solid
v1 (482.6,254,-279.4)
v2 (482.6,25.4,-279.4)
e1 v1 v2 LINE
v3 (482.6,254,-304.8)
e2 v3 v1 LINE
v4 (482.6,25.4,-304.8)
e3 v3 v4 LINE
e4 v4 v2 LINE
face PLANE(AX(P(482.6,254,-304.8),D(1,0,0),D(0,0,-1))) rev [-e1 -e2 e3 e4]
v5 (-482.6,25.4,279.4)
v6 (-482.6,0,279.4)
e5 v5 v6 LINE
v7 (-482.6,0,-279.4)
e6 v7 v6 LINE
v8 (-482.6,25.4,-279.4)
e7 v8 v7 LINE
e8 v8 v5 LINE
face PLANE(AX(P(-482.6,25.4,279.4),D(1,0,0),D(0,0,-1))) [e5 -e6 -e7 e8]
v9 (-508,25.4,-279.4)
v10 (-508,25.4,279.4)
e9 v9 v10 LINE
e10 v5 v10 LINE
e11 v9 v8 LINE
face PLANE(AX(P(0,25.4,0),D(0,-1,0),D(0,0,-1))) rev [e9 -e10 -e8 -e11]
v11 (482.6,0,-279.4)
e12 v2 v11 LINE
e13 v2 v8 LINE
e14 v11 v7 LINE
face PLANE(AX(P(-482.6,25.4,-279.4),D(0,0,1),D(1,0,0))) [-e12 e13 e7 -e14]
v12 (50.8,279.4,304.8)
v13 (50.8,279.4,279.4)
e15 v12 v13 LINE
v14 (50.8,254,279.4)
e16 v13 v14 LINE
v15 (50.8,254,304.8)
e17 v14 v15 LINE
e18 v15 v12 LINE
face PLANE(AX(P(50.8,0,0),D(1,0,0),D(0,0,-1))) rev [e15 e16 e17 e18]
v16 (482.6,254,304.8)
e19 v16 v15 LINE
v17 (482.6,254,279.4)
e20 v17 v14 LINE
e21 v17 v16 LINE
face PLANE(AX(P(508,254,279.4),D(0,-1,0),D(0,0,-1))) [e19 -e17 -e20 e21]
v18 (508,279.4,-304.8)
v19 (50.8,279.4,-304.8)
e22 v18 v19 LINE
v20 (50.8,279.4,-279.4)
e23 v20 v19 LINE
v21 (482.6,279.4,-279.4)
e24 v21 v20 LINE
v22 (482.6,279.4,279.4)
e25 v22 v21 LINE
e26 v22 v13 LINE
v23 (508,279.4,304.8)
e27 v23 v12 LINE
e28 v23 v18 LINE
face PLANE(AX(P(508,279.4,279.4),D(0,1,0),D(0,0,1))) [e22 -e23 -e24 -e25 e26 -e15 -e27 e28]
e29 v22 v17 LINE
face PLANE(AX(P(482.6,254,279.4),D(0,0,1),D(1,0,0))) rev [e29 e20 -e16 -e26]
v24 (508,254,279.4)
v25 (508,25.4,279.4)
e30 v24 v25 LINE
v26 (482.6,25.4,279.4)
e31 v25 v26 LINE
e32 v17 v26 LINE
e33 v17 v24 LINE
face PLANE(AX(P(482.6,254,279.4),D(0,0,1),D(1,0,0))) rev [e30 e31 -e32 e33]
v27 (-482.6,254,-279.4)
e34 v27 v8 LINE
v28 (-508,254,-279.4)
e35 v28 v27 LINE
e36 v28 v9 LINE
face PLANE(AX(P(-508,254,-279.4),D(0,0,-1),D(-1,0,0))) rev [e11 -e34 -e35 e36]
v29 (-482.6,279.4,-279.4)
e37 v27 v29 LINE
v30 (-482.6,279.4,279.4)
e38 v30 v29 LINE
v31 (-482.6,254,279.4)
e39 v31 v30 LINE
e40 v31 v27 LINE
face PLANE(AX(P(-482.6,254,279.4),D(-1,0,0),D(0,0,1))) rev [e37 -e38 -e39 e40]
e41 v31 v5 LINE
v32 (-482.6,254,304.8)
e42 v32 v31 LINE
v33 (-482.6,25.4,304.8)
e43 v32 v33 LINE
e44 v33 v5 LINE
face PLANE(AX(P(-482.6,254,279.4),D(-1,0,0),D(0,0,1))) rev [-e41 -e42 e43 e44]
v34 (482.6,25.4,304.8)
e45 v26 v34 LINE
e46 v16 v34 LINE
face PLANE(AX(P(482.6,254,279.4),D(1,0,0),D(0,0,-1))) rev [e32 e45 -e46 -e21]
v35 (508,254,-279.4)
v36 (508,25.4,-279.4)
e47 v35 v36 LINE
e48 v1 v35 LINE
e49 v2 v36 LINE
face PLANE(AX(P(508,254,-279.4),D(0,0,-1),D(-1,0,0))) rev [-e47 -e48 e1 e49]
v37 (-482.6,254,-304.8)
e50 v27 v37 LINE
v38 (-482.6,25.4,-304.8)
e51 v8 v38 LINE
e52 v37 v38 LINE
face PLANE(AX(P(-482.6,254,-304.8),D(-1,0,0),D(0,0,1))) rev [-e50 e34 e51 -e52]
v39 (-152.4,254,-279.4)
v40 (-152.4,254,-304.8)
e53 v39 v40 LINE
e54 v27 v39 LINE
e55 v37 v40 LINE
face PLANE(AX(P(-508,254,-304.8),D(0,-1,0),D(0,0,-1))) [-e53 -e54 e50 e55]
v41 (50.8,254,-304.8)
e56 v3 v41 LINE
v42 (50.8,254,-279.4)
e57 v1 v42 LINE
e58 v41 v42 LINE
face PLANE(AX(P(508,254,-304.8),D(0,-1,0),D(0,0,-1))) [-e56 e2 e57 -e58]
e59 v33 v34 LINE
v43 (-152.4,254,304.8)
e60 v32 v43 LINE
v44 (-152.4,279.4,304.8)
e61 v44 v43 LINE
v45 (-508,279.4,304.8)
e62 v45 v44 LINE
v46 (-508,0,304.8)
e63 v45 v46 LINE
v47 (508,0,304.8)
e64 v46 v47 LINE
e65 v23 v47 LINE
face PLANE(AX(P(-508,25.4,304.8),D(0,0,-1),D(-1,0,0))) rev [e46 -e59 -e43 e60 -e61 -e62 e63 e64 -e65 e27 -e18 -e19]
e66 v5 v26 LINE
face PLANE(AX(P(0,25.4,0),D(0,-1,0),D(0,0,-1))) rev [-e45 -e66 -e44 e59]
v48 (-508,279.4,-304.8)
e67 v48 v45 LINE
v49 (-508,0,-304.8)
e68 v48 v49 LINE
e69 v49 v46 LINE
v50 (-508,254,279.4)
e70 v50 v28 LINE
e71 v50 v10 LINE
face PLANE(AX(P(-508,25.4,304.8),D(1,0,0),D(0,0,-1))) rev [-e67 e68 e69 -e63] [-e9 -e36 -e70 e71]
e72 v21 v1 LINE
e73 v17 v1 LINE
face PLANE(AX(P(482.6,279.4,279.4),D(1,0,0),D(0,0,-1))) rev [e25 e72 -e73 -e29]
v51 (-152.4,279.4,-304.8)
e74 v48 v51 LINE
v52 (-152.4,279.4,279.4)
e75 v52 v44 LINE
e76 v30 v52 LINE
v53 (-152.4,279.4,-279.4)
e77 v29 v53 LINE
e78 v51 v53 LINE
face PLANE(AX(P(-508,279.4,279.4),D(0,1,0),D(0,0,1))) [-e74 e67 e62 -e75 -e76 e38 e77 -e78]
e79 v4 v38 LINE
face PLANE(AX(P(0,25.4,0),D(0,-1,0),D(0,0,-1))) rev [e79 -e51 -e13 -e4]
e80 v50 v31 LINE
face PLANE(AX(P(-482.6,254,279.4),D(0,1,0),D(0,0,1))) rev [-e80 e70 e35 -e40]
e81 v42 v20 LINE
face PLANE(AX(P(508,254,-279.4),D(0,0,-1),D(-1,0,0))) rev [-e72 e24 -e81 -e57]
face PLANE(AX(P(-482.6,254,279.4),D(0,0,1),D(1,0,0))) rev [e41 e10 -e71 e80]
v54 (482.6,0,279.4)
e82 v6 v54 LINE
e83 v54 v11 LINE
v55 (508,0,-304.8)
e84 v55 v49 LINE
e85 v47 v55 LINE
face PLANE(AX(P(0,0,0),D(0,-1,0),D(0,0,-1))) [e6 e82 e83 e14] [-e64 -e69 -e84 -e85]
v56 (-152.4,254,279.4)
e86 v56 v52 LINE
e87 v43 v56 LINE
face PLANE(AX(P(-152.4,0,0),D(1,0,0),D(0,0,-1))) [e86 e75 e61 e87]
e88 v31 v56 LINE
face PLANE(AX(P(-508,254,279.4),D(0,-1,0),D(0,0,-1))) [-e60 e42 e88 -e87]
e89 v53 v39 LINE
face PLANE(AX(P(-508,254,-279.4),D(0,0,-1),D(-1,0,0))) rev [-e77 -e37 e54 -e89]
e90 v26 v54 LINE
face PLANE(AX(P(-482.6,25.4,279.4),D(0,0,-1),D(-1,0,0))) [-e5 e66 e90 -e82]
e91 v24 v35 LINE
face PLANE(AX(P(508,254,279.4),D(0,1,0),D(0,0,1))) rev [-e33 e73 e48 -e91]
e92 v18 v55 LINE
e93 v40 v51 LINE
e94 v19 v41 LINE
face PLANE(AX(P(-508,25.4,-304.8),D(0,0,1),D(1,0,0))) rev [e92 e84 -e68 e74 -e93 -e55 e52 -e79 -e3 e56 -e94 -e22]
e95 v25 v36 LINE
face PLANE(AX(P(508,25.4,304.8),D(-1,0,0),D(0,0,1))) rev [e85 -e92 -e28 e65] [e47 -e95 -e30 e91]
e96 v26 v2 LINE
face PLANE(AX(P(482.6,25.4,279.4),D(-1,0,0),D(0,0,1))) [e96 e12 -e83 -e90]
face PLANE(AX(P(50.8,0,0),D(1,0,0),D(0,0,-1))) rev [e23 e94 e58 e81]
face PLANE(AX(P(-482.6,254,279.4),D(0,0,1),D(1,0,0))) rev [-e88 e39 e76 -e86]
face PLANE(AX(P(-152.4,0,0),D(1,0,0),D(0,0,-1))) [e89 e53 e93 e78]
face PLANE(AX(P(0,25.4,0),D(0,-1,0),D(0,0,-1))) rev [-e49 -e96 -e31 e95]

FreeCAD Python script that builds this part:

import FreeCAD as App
import Part
import Sketcher
from FreeCAD import Vector
Q = App.Units.Quantity


def add_polygon(sketch, points):
    """Adds a closed chain of lines whose ends are joined by coincident constraints."""
    first, n = sketch.GeometryCount, len(points)
    for a, b in zip(points, points[1:] + points[:1]):
        sketch.addGeometry(Part.LineSegment(App.Vector(*a, 0), App.Vector(*b, 0)), False)
    for i in range(n):
        sketch.addConstraint(Sketcher.Constraint("Coincident", first + i, 2, first + (i + 1) % n, 1))

doc = App.newDocument("Part")
params = doc.addObject("Spreadsheet::Sheet", "Params")
for row, (alias, value) in enumerate([
    ("sketch1_width", "40 in"),
    ("sketch1_width2", "38 in"),
    ("sketch1_height", "24 in"),
    ("sketch1_height2", "22 in"),
    ("pad1_length", "1 in"),
    ("sketch2_width", "1 in"),
    ("pad2_length", "9 in"),
    ("sketch3_width", "1 in"),
    ("pad3_length", "13 in"),
    ("pad3_length2", "1 in"),
    ("sketch4_width", "1 in"),
    ("pad4_length", "17 in"),
    ("pad4_length2", "1 in"),
    ("sketch5_width", "1 in"),
    ("pad5_length", "22 in"),
], start=1):
    params.set(f"A{row}", alias)
    params.set(f"B{row}", "=" + value)
    params.setAlias(f"B{row}", alias)

body = doc.addObject("PartDesign::Body", "Body")

# Sketch on XZ plane
sketch1 = doc.addObject("Sketcher::SketchObject", "Sketch")
body.addObject(sketch1)
sketch1.AttachmentSupport = (doc.XZ_Plane, [""])
sketch1.MapMode = "FlatFace"
add_polygon(sketch1, [(-508, -305), (-508, 305), (508, 305), (508, -305)])  # lines 0-3
add_polygon(sketch1, [(483, 279), (-483, 279), (-483, -279), (483, -279)])  # lines 4-7
sketch1.addConstraint([
    Sketcher.Constraint("Vertical", 0),
    Sketcher.Constraint("Horizontal", 1),
    Sketcher.Constraint("Vertical", 2),
    Sketcher.Constraint("Horizontal", 3),
    Sketcher.Constraint("Horizontal", 4),
    Sketcher.Constraint("Vertical", 5),
    Sketcher.Constraint("Horizontal", 6),
    Sketcher.Constraint("Vertical", 7),
    Sketcher.Constraint("Symmetric", 0, 2, 2, 2, -1, 1),
    Sketcher.Constraint("Symmetric", 4, 2, 6, 2, -1, 1),
    Sketcher.Constraint("DistanceX", 1, 1, 1, 2, Q("40 in")),
    Sketcher.Constraint("DistanceX", 4, 2, 4, 1, Q("38 in")),
    Sketcher.Constraint("DistanceY", 0, 1, 0, 2, Q("24 in")),
    Sketcher.Constraint("DistanceY", 5, 2, 5, 1, Q("22 in")),
])
sketch1.setExpression("Constraints[18]", "Params.sketch1_width")
sketch1.setExpression("Constraints[19]", "Params.sketch1_width2")
sketch1.setExpression("Constraints[20]", "Params.sketch1_height")
sketch1.setExpression("Constraints[21]", "Params.sketch1_height2")
pad1 = doc.addObject("PartDesign::Pad", "Pad")
body.addObject(pad1)
pad1.Profile = sketch1
pad1.setExpression("Length", "Params.pad1_length")
pad1.Reversed = True

# Sketch on XZ plane
sketch2 = doc.addObject("Sketcher::SketchObject", "Sketch001")
body.addObject(sketch2)
sketch2.AttachmentSupport = (doc.XZ_Plane, [""])
sketch2.MapMode = "FlatFace"
sketch2.AttachmentOffset = App.Placement(Vector(0, 0, -1 * 25.4), App.Rotation())
add_polygon(sketch2, [(-508, -305), (-508, -279), (-483, -279), (-483, -305)])  # lines 0-3
add_polygon(sketch2, [(483, -305), (483, -279), (508, -279), (508, -305)])  # lines 4-7
add_polygon(sketch2, [(483, 279), (483, 305), (508, 305), (508, 279)])  # lines 8-11
add_polygon(sketch2, [(-508, 279), (-508, 305), (-483, 305), (-483, 279)])  # lines 12-15
sketch2.addConstraint([
    Sketcher.Constraint("Vertical", 0),
    Sketcher.Constraint("Horizontal", 1),
    Sketcher.Constraint("Vertical", 2),
    Sketcher.Constraint("Horizontal", 3),
    Sketcher.Constraint("Vertical", 4),
    Sketcher.Constraint("Horizontal", 5),
    Sketcher.Constraint("Vertical", 6),
    Sketcher.Constraint("Horizontal", 7),
    Sketcher.Constraint("Vertical", 8),
    Sketcher.Constraint("Horizontal", 9),
    Sketcher.Constraint("Vertical", 10),
    Sketcher.Constraint("Horizontal", 11),
    Sketcher.Constraint("Vertical", 12),
    Sketcher.Constraint("Horizontal", 13),
    Sketcher.Constraint("Vertical", 14),
    Sketcher.Constraint("Horizontal", 15),
    Sketcher.Constraint("Symmetric", 2, 2, 8, 2, -1, 1),
    Sketcher.Constraint("Symmetric", 0, 2, 10, 2, -1, 1),
    Sketcher.Constraint("Symmetric", 6, 2, 12, 2, -1, 1),
    Sketcher.Constraint("Symmetric", 4, 2, 14, 2, -1, 1),
    Sketcher.Constraint("Symmetric", 1, 2, 4, 2, -2),
    Sketcher.Constraint("Symmetric", 3, 2, 6, 2, -2),
    Sketcher.Constraint("Equal", 15, 0),
    Sketcher.Constraint("DistanceX", 1, 1, 1, 2, Q("1 in")),
    Sketcher.Constraint("DistanceX", 0, 2, -1, 1, Q("20 in")),
    Sketcher.Constraint("DistanceY", 0, 2, -1, 1, Q("11 in")),
])
sketch2.setExpression("Constraints[39]", "Params.sketch2_width")
pad2 = doc.addObject("PartDesign::Pad", "Pad001")
body.addObject(pad2)
pad2.Profile = sketch2
pad2.setExpression("Length", "Params.pad2_length")
pad2.Reversed = True

# Sketch on YZ plane
sketch3 = doc.addObject("Sketcher::SketchObject", "Sketch002")
body.addObject(sketch3)
sketch3.AttachmentSupport = (doc.YZ_Plane, [""])
sketch3.MapMode = "FlatFace"
sketch3.AttachmentOffset = App.Placement(Vector(0, 0, -19 * 25.4), App.Rotation())
add_polygon(sketch3, [(279, 305), (254, 305), (254, 279), (279, 279)])  # lines 0-3
add_polygon(sketch3, [(279, -279), (254, -279), (254, -305), (279, -305)])  # lines 4-7
sketch3.addConstraint([
    Sketcher.Constraint("Horizontal", 0),
    Sketcher.Constraint("Vertical", 1),
    Sketcher.Constraint("Horizontal", 2),
    Sketcher.Constraint("Vertical", 3),
    Sketcher.Constraint("Horizontal", 4),
    Sketcher.Constraint("Vertical", 5),
    Sketcher.Constraint("Horizontal", 6),
    Sketcher.Constraint("Vertical", 7),
    Sketcher.Constraint("Symmetric", 1, 2, 4, 2, -1),
    Sketcher.Constraint("Symmetric", 3, 2, 6, 2, -1),
    Sketcher.Constraint("Equal", 6, 1),
    Sketcher.Constraint("DistanceX", 0, 2, 0, 1, Q("1 in")),
    Sketcher.Constraint("DistanceX", -1, 1, 0, 2, Q("10 in")),
    Sketcher.Constraint("DistanceY", -1, 1, 0, 2, Q("12 in")),
])
sketch3.setExpression("Constraints[19]", "Params.sketch3_width")
pad3 = doc.addObject("PartDesign::Pad", "Pad002")
body.addObject(pad3)
pad3.Profile = sketch3
pad3.Type = "TwoLengths"
pad3.setExpression("Length", "Params.pad3_length")
pad3.setExpression("Length2", "Params.pad3_length2")

# Sketch on YZ plane
sketch4 = doc.addObject("Sketcher::SketchObject", "Sketch003")
body.addObject(sketch4)
sketch4.AttachmentSupport = (doc.YZ_Plane, [""])
sketch4.MapMode = "FlatFace"
sketch4.AttachmentOffset = App.Placement(Vector(0, 0, 19 * 25.4), App.Rotation())
add_polygon(sketch4, [(279, 279), (254, 279), (254, 305), (279, 305)])  # lines 0-3
add_polygon(sketch4, [(279, -305), (254, -305), (254, -279), (279, -279)])  # lines 4-7
sketch4.addConstraint([
    Sketcher.Constraint("Horizontal", 0),
    Sketcher.Constraint("Vertical", 1),
    Sketcher.Constraint("Horizontal", 2),
    Sketcher.Constraint("Vertical", 3),
    Sketcher.Constraint("Horizontal", 4),
    Sketcher.Constraint("Vertical", 5),
    Sketcher.Constraint("Horizontal", 6),
    Sketcher.Constraint("Vertical", 7),
    Sketcher.Constraint("Symmetric", 1, 2, 4, 2, -1),
    Sketcher.Constraint("Symmetric", 3, 2, 6, 2, -1),
    Sketcher.Constraint("Equal", 6, 1),
    Sketcher.Constraint("DistanceX", 0, 2, 0, 1, Q("1 in")),
    Sketcher.Constraint("DistanceX", -1, 1, 0, 2, Q("10 in")),
    Sketcher.Constraint("DistanceY", -1, 1, 0, 2, Q("11 in")),
])
sketch4.setExpression("Constraints[19]", "Params.sketch4_width")
pad4 = doc.addObject("PartDesign::Pad", "Pad003")
body.addObject(pad4)
pad4.Profile = sketch4
pad4.Type = "TwoLengths"
pad4.setExpression("Length", "Params.pad4_length")
pad4.setExpression("Length2", "Params.pad4_length2")
pad4.Reversed = True

# Sketch on XY plane
sketch5 = doc.addObject("Sketcher::SketchObject", "Sketch004")
body.addObject(sketch5)
sketch5.AttachmentSupport = (doc.XY_Plane, [""])
sketch5.MapMode = "FlatFace"
sketch5.AttachmentOffset = App.Placement(Vector(0, 0, -11 * 25.4), App.Rotation())
add_polygon(sketch5, [(483, 279), (483, 254), (508, 254), (508, 279)])  # lines 0-3
add_polygon(sketch5, [(-508, 279), (-508, 254), (-483, 254), (-483, 279)])  # lines 4-7
sketch5.addConstraint([
    Sketcher.Constraint("Vertical", 0),
    Sketcher.Constraint("Horizontal", 1),
    Sketcher.Constraint("Vertical", 2),
    Sketcher.Constraint("Horizontal", 3),
    Sketcher.Constraint("Vertical", 4),
    Sketcher.Constraint("Horizontal", 5),
    Sketcher.Constraint("Vertical", 6),
    Sketcher.Constraint("Horizontal", 7),
    Sketcher.Constraint("Symmetric", 1, 2, 4, 2, -2),
    Sketcher.Constraint("Symmetric", 3, 2, 6, 2, -2),
    Sketcher.Constraint("Equal", 7, 0),
    Sketcher.Constraint("DistanceX", 1, 1, 1, 2, Q("1 in")),
    Sketcher.Constraint("DistanceX", -1, 1, 0, 2, Q("19 in")),
    Sketcher.Constraint("DistanceY", -1, 1, 0, 2, Q("10 in")),
])
sketch5.setExpression("Constraints[19]", "Params.sketch5_width")
pad5 = doc.addObject("PartDesign::Pad", "Pad004")
body.addObject(pad5)
pad5.Profile = sketch5
pad5.setExpression("Length", "Params.pad5_length")

doc.recompute()
